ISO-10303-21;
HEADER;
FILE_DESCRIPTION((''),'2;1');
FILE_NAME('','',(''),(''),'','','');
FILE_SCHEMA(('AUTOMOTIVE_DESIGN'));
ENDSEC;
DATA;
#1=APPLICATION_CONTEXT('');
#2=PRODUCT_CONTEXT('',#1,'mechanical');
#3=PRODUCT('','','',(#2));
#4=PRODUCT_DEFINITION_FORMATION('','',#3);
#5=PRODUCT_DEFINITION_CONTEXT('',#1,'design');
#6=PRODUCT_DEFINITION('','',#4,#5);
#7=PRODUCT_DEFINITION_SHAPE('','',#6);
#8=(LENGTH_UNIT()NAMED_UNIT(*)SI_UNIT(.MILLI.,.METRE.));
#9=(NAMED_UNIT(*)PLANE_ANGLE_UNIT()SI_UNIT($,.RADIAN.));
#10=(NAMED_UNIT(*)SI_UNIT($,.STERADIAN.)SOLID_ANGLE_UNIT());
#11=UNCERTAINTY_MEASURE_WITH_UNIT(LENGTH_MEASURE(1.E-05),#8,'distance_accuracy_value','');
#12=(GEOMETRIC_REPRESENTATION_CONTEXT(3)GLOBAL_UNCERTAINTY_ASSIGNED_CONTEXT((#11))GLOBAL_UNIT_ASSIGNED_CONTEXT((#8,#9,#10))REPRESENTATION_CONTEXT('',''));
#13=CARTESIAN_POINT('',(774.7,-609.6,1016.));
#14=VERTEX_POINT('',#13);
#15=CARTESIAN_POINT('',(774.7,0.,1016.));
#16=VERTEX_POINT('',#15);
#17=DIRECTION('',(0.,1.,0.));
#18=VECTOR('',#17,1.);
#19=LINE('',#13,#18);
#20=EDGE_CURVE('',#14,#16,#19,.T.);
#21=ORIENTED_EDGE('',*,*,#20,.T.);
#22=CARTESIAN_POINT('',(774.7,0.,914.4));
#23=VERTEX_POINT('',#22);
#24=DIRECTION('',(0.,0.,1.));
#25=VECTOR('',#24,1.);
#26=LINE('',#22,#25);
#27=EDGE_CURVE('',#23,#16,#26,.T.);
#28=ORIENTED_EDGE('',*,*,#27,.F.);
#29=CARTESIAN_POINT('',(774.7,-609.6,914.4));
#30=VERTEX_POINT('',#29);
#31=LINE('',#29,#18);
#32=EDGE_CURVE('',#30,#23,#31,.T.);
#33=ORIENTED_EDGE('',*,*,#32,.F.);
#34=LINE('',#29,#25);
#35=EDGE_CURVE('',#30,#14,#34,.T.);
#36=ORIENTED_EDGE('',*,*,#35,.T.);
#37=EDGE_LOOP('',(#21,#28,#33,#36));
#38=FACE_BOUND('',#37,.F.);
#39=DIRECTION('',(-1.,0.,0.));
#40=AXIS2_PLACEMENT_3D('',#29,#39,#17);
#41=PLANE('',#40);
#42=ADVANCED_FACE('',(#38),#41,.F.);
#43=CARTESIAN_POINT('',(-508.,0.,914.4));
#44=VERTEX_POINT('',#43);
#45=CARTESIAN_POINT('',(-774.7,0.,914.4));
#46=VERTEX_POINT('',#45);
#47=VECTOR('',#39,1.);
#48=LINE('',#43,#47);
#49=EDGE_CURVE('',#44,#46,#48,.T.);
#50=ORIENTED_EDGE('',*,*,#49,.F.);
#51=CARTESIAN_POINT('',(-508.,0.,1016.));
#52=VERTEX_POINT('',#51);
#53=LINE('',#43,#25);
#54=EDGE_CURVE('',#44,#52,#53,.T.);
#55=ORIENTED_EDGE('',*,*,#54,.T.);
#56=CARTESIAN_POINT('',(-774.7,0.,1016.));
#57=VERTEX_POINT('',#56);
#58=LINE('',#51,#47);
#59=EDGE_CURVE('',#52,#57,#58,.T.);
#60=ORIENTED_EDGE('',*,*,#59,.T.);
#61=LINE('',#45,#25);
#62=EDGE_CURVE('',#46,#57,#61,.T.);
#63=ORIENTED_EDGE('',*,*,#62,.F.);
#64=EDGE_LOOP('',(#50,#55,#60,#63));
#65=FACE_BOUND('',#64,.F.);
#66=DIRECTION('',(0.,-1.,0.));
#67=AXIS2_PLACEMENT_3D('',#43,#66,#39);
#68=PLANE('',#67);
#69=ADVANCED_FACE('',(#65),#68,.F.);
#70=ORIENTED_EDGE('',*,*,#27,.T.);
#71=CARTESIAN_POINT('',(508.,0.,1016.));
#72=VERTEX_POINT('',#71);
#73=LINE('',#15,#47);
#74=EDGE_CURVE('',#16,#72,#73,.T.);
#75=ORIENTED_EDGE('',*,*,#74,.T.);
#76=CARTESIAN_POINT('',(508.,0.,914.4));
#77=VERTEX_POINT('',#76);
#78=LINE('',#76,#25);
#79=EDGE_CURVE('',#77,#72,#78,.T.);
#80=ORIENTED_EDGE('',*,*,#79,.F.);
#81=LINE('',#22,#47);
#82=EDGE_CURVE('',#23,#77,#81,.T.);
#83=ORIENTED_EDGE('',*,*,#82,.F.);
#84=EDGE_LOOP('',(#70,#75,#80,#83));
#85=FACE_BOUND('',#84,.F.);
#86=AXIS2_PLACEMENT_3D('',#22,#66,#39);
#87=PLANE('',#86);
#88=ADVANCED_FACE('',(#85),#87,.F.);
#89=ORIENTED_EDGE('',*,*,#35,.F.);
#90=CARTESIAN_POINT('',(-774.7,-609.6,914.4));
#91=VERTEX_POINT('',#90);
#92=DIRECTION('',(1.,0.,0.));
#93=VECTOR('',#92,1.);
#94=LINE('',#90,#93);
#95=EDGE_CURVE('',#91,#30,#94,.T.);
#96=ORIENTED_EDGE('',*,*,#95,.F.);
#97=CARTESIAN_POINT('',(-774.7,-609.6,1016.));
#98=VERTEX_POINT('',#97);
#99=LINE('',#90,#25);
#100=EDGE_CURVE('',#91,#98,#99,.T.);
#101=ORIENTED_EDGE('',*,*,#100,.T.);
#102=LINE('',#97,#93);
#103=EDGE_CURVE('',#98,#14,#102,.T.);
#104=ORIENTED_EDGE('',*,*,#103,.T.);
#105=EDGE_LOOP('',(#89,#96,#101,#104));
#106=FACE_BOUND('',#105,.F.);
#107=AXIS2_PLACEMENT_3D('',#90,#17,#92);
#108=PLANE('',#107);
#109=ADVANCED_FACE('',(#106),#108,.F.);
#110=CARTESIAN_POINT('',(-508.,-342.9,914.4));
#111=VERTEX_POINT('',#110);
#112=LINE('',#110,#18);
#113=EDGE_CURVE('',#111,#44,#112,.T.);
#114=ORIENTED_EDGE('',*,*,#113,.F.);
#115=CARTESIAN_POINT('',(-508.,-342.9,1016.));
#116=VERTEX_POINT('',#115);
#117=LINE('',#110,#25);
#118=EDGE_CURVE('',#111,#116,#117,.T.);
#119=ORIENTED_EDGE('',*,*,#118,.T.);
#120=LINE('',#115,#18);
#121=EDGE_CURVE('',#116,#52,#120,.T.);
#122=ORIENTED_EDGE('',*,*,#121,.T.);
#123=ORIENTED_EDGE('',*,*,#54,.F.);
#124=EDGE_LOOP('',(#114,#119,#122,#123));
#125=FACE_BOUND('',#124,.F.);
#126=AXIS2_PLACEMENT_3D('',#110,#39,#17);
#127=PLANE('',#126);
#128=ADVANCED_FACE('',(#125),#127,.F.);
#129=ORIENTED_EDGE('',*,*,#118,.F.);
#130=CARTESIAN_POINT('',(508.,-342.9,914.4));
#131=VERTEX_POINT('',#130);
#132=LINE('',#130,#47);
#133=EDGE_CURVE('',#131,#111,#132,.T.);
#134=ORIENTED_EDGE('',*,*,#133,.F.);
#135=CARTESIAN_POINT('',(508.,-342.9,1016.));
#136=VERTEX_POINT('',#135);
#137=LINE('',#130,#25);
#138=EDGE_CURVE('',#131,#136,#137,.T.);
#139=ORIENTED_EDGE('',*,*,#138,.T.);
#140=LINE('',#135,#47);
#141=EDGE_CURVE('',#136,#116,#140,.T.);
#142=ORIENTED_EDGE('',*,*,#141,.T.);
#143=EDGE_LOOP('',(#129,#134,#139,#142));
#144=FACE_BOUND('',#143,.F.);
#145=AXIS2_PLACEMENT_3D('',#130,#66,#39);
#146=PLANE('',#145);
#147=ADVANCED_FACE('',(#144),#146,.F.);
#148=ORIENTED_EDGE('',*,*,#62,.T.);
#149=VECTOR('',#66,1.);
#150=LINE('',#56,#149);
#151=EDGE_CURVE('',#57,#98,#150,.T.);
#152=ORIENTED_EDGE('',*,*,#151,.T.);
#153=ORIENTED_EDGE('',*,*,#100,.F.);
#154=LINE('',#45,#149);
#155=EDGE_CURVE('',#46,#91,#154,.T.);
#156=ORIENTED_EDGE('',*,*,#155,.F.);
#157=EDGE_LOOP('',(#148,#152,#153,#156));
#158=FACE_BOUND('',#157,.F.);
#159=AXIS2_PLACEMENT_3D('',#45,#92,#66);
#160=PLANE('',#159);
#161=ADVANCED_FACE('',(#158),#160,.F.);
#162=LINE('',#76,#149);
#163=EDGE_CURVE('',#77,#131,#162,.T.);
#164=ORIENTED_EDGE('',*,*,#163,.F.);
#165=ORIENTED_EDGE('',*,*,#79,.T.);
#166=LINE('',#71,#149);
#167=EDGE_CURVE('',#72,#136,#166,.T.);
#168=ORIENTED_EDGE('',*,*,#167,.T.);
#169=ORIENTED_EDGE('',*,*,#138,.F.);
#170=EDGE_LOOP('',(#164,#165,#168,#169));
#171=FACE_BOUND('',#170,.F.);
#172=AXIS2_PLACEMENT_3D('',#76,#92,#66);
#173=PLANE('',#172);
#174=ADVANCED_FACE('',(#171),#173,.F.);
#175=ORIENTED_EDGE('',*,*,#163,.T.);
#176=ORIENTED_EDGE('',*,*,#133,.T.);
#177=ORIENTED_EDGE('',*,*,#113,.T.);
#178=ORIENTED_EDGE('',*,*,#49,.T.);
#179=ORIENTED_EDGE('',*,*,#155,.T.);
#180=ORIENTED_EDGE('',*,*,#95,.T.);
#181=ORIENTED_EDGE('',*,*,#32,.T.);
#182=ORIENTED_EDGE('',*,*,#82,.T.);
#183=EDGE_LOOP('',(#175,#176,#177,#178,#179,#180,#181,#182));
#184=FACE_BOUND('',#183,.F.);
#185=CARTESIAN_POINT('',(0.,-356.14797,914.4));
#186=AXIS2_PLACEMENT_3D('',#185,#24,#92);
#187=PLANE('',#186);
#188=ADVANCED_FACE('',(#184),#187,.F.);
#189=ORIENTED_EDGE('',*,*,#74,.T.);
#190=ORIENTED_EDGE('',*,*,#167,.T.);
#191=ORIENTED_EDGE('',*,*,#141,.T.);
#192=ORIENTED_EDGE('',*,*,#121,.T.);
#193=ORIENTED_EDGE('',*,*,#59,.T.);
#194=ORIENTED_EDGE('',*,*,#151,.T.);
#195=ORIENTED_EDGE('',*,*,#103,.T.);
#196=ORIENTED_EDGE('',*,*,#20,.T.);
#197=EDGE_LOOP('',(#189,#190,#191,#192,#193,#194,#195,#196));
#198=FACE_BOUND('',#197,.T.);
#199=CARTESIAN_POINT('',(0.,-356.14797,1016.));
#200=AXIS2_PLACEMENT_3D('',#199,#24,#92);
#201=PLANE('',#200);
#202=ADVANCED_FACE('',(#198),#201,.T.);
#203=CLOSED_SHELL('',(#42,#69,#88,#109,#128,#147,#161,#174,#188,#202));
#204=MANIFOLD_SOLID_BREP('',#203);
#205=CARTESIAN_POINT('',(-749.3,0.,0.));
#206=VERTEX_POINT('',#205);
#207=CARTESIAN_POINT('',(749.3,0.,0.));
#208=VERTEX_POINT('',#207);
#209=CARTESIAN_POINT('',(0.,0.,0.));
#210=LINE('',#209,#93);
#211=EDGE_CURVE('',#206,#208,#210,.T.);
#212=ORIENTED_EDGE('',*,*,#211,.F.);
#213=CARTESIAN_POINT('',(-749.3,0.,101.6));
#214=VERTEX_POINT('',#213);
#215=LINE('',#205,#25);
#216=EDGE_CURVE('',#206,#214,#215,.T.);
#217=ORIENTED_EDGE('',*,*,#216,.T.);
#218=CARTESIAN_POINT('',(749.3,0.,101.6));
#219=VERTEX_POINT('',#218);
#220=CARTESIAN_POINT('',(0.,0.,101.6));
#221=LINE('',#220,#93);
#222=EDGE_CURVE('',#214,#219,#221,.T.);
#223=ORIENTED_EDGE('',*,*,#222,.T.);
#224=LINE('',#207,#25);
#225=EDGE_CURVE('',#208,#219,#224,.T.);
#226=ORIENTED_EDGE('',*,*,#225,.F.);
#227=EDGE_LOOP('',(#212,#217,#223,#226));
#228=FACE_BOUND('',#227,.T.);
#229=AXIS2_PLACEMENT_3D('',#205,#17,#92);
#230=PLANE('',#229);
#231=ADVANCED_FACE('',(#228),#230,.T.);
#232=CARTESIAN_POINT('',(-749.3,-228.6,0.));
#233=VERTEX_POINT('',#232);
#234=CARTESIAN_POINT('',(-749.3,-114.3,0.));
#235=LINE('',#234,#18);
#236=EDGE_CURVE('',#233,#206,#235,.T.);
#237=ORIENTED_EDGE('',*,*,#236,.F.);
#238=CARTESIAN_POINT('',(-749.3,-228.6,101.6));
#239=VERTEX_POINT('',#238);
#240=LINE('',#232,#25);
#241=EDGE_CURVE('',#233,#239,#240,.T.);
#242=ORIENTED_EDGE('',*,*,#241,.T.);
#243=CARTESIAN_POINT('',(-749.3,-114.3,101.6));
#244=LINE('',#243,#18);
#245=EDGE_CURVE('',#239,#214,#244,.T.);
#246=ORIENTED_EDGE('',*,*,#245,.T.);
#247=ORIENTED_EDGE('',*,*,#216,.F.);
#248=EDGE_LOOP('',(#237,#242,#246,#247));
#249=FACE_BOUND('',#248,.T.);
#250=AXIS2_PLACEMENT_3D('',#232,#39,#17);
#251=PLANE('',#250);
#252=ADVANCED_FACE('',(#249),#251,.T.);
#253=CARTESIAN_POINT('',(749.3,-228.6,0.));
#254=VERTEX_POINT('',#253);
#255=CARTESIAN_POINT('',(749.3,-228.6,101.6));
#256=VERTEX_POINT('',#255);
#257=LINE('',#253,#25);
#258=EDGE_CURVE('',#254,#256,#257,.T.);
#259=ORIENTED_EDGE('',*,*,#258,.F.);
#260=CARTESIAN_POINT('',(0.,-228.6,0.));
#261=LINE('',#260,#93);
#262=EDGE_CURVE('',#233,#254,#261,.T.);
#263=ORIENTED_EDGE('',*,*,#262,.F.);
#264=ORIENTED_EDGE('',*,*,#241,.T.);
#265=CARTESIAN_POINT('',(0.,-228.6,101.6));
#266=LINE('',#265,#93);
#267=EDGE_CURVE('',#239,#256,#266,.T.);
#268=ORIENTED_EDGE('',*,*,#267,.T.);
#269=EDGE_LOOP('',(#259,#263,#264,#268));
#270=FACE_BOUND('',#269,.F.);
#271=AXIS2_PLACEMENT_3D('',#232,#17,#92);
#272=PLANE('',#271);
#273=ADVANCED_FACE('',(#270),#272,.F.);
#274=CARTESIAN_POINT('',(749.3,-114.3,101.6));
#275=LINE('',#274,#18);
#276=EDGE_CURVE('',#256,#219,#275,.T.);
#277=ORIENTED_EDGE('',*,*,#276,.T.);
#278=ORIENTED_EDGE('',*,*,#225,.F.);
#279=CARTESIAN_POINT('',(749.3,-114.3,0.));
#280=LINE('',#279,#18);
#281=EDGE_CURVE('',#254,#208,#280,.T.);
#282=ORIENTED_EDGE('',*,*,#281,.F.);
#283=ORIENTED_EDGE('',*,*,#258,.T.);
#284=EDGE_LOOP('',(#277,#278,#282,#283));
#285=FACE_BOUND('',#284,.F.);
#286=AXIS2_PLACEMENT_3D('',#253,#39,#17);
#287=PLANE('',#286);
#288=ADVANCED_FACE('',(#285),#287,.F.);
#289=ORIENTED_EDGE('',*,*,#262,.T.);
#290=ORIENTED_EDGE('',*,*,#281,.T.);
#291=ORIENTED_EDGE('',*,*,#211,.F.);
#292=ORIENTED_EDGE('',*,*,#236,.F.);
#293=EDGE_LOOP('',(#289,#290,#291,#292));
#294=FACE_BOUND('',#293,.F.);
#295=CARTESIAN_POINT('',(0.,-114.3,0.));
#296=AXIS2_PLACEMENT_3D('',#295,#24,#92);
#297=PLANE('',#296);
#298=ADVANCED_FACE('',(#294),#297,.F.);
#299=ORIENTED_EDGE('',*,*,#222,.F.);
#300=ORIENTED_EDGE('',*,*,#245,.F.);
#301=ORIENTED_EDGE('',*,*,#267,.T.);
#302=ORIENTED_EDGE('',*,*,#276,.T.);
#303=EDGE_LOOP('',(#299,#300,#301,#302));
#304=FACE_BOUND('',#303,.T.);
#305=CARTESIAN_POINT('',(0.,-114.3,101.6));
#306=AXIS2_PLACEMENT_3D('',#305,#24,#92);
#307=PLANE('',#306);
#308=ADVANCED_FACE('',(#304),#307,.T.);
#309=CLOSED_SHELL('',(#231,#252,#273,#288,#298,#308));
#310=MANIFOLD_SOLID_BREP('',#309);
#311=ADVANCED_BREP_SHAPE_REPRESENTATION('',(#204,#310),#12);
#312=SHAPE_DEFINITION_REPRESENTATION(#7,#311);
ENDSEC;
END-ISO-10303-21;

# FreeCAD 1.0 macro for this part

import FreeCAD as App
import Part
import Sketcher
from FreeCAD import Vector
Q = App.Units.Quantity

doc = App.newDocument("Part")
body = doc.addObject("PartDesign::Body", "Body")

# Sketch on XY plane
sketch1 = body.newObject("Sketcher::SketchObject", "Sketch")
sketch1.AttachmentSupport = (doc.getObject("XY_Plane"), [""])
sketch1.MapMode = "FlatFace"
sketch1.addGeometry([
    Part.LineSegment(Vector(-749, 0, 0), Vector(-749, -229, 0)),
    Part.LineSegment(Vector(-749, -229, 0), Vector(749, -229, 0)),
    Part.LineSegment(Vector(749, -229, 0), Vector(749, 0, 0)),
    Part.LineSegment(Vector(749, 0, 0), Vector(-749, 0, 0)),
], False)
sketch1.addConstraint([
    Sketcher.Constraint("Coincident", 0, 2, 1, 1),
    Sketcher.Constraint("Coincident", 1, 2, 2, 1),
    Sketcher.Constraint("Coincident", 2, 2, 3, 1),
    Sketcher.Constraint("Coincident", 3, 2, 0, 1),
    Sketcher.Constraint("Vertical", 0),
    Sketcher.Constraint("Horizontal", 1),
    Sketcher.Constraint("Vertical", 2),
    Sketcher.Constraint("Horizontal", 3),
    Sketcher.Constraint("Symmetric", 2, 2, 3, 2, -1, 1),
    Sketcher.Constraint("DistanceX", 1, 1, 1, 2, Q("59 in")),
    Sketcher.Constraint("DistanceY", 0, 2, 0, 1, Q("9 in")),
])
pad1 = body.newObject("PartDesign::Pad", "Pad")
pad1.Profile = sketch1
pad1.Length = Q("4 in")
body2 = doc.addObject("PartDesign::Body", "Body001")

# Sketch on XY plane
sketch2 = body2.newObject("Sketcher::SketchObject", "Sketch001")
sketch2.AttachmentSupport = (doc.getObject("XY_Plane001"), [""])
sketch2.MapMode = "FlatFace"
sketch2.AttachmentOffset = App.Placement(Vector(0, 0, 36 * 25.4), App.Rotation())
sketch2.addGeometry([
    Part.LineSegment(Vector(-508, -343, 0), Vector(-508, 0, 0)),  # 0
    Part.LineSegment(Vector(-508, 0, 0), Vector(-775, 0, 0)),  # 1
    Part.LineSegment(Vector(-775, 0, 0), Vector(-775, -610, 0)),  # 2
    Part.LineSegment(Vector(-775, -610, 0), Vector(775, -610, 0)),  # 3
    Part.LineSegment(Vector(775, -610, 0), Vector(775, 0, 0)),  # 4
    Part.LineSegment(Vector(775, 0, 0), Vector(508, 0, 0)),  # 5
    Part.LineSegment(Vector(508, 0, 0), Vector(508, -343, 0)),  # 6
    Part.LineSegment(Vector(508, -343, 0), Vector(-508, -343, 0)),  # 7
], False)
sketch2.addConstraint([
    Sketcher.Constraint("Coincident", 0, 2, 1, 1),
    Sketcher.Constraint("Coincident", 1, 2, 2, 1),
    Sketcher.Constraint("Coincident", 2, 2, 3, 1),
    Sketcher.Constraint("Coincident", 3, 2, 4, 1),
    Sketcher.Constraint("Coincident", 4, 2, 5, 1),
    Sketcher.Constraint("Coincident", 5, 2, 6, 1),
    Sketcher.Constraint("Coincident", 6, 2, 7, 1),
    Sketcher.Constraint("Coincident", 7, 2, 0, 1),
    Sketcher.Constraint("Vertical", 0),
    Sketcher.Constraint("Horizontal", 1),
    Sketcher.Constraint("Vertical", 2),
    Sketcher.Constraint("Horizontal", 3),
    Sketcher.Constraint("Vertical", 4),
    Sketcher.Constraint("Horizontal", 5),
    Sketcher.Constraint("Vertical", 6),
    Sketcher.Constraint("Horizontal", 7),
    Sketcher.Constraint("Symmetric", 1, 2, 4, 2, -1, 1),
    Sketcher.Constraint("Symmetric", 0, 2, 5, 2, -2),
    Sketcher.Constraint("DistanceX", 3, 1, 3, 2, Q("61 in")),
    Sketcher.Constraint("DistanceX", 7, 2, 7, 1, Q("40 in")),
    Sketcher.Constraint("DistanceY", 2, 2, 2, 1, Q("24 in")),
    Sketcher.Constraint("DistanceY", 0, 1, 0, 2, Q("13.5 in")),
])
pad2 = body2.newObject("PartDesign::Pad", "Pad001")
pad2.Profile = sketch2
pad2.Length = Q("4 in")

doc.recompute()
